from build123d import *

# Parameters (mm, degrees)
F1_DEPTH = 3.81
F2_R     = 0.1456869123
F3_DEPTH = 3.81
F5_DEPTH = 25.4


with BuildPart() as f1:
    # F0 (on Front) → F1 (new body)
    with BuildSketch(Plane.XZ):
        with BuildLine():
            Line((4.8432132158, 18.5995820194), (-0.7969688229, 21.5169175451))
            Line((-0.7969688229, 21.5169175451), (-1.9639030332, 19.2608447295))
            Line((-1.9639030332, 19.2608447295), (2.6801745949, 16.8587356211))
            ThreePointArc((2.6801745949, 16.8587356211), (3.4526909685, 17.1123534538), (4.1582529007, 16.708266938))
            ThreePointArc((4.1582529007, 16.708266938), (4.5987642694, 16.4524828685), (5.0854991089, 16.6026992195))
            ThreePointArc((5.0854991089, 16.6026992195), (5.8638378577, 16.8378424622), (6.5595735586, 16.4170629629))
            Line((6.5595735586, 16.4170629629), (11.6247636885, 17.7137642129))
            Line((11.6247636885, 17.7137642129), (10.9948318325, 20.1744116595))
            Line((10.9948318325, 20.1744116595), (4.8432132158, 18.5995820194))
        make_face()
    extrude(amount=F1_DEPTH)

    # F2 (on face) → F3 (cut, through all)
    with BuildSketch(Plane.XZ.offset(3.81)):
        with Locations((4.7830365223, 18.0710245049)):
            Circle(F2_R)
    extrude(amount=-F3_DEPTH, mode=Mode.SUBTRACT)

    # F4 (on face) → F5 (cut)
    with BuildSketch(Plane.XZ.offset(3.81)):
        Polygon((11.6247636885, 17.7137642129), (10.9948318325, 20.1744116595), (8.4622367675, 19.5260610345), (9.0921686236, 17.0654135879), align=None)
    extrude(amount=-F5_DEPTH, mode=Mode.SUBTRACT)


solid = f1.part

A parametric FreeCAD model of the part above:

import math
import FreeCAD as App
import Part
import Sketcher
from FreeCAD import Vector
Q = App.Units.Quantity


def add_polygon(sketch, points):
    """Adds a closed chain of lines whose ends are joined by coincident constraints."""
    first, n = sketch.GeometryCount, len(points)
    for a, b in zip(points, points[1:] + points[:1]):
        sketch.addGeometry(Part.LineSegment(App.Vector(*a, 0), App.Vector(*b, 0)), False)
    for i in range(n):
        sketch.addConstraint(Sketcher.Constraint("Coincident", first + i, 2, first + (i + 1) % n, 1))

doc = App.newDocument("Part")
body = doc.addObject("PartDesign::Body", "Body")

# Sketch on XZ plane
sketch1 = body.newObject("Sketcher::SketchObject", "Sketch")
sketch1.AttachmentSupport = (doc.getObject("XZ_Plane"), [""])
sketch1.MapMode = "FlatFace"
sketch1.addGeometry([
    Part.LineSegment(Vector(4.843213, 18.599582, 0), Vector(-0.796969, 21.516918, 0)),  # 0
    Part.LineSegment(Vector(-0.796969, 21.516918, 0), Vector(-1.963903, 19.260845, 0)),  # 1
    Part.LineSegment(Vector(-1.963903, 19.260845, 0), Vector(2.680175, 16.858736, 0)),  # 2
    Part.ArcOfCircle(Part.Circle(Vector(3.351414, 16.117495, 0), Vector(0, 0, 1), 1), math.radians(36.211795), math.radians(132.162809)),  # 3
    Part.ArcOfCircle(Part.Circle(Vector(4.670595, 17.083407, 0), Vector(0, 0, 1), 0.635), math.radians(-143.788205), math.radians(-49.2022)),  # 4
    Part.ArcOfCircle(Part.Circle(Vector(5.738891, 15.845679, 0), Vector(0, 0, 1), 1), math.radians(34.846785), math.radians(130.7978)),  # 5
    Part.LineSegment(Vector(6.559574, 16.417063, 0), Vector(11.624764, 17.713764, 0)),  # 6
    Part.LineSegment(Vector(11.624764, 17.713764, 0), Vector(10.994832, 20.174412, 0)),  # 7
    Part.LineSegment(Vector(10.994832, 20.174412, 0), Vector(4.843213, 18.599582, 0)),  # 8
], False)
sketch1.addConstraint([
    Sketcher.Constraint("Coincident", 0, 2, 1, 1),
    Sketcher.Constraint("Coincident", 1, 2, 2, 1),
    Sketcher.Constraint("Coincident", 2, 2, 3, 2),
    Sketcher.Constraint("Coincident", 3, 1, 4, 1),
    Sketcher.Constraint("Coincident", 4, 2, 5, 2),
    Sketcher.Constraint("Coincident", 5, 1, 6, 1),
    Sketcher.Constraint("Coincident", 6, 2, 7, 1),
    Sketcher.Constraint("Coincident", 7, 2, 8, 1),
    Sketcher.Constraint("Coincident", 8, 2, 0, 1),
    Sketcher.Constraint("Radius", 4, Q("0.025 in")),
    Sketcher.Constraint("Distance", 1, Q("0.1 in")),
    Sketcher.Constraint("Distance", 7, Q("0.1 in")),
    Sketcher.Constraint("Distance", 0, Q("0.25 in")),
    Sketcher.Constraint("Distance", 8, Q("0.25 in")),
    Sketcher.Constraint("Radius", 3, Q("1 mm")),
    Sketcher.Constraint("Radius", 5, Q("1 mm")),
    Sketcher.Constraint("DistanceX", -1, 1, 4, 2, Q("5.085499 mm")),
    Sketcher.Constraint("DistanceY", -1, 1, 4, 2, Q("16.602699 mm")),
    Sketcher.Constraint("DistanceX", 1, 2, 4, 3, Q("6.634499 mm")),
    Sketcher.Constraint("DistanceY", 5, 1, 6, 2, Q("1.296701 mm")),
    Sketcher.Constraint("DistanceX", -1, 1, 5, 3, Q("5.738891 mm")),
    Sketcher.Constraint("DistanceX", 0, 2, -1, 1, Q("0.796969 mm")),
    Sketcher.Constraint("DistanceX", -1, 1, 7, 2, Q("10.994832 mm")),
    Sketcher.Constraint("DistanceY", -1, 1, 7, 2, Q("20.174412 mm")),
    Sketcher.Constraint("DistanceX", 3, 3, 4, 3, Q("1.319181 mm")),
    Sketcher.Constraint("DistanceY", 4, 3, 0, 2, Q("4.433511 mm")),
    Sketcher.Constraint("DistanceY", 5, 3, 0, 2, Q("5.671238 mm")),
    Sketcher.Constraint("DistanceX", 2, 2, 3, 3, Q("0.67124 mm")),
    Sketcher.Constraint("DistanceY", 3, 1, 4, 3, Q("0.37514 mm")),
    Sketcher.Constraint("DistanceX", 4, 3, 5, 1, Q("1.888978 mm")),
])
pad1 = body.newObject("PartDesign::Pad", "Pad")
pad1.Profile = sketch1
pad1.Length = Q("0.15 in")

# Sketch on XZ plane
sketch2 = body.newObject("Sketcher::SketchObject", "Sketch001")
sketch2.AttachmentSupport = (doc.getObject("XZ_Plane"), [""])
sketch2.MapMode = "FlatFace"
sketch2.AttachmentOffset = App.Placement(Vector(0, 0, 0.15 * 25.4), App.Rotation())
sketch2.addGeometry(Part.Circle(Vector(4.78, 18.07, 0), Vector(0, 0, 1), 0.15), False)
sketch2.addConstraint([
    Sketcher.Constraint("Diameter", 0, Q("0.291374 mm")),
    Sketcher.Constraint("DistanceX", -1, 1, 0, 3, Q("4.783037 mm")),
    Sketcher.Constraint("DistanceY", -1, 1, 0, 3, Q("18.071025 mm")),
])
pocket1 = body.newObject("PartDesign::Pocket", "Pocket")
pocket1.Profile = sketch2
pocket1.Type = "ThroughAll"

# Sketch on XZ plane
sketch3 = body.newObject("Sketcher::SketchObject", "Sketch002")
sketch3.AttachmentSupport = (doc.getObject("XZ_Plane"), [""])
sketch3.MapMode = "FlatFace"
sketch3.AttachmentOffset = App.Placement(Vector(0, 0, 0.15 * 25.4), App.Rotation())
add_polygon(sketch3, [(11.6, 17.7), (11, 20.2), (8.5, 19.5), (9.1, 17.1)])  # lines 0-3
sketch3.addConstraint([
    Sketcher.Constraint("Perpendicular", 0, 1),
    Sketcher.Constraint("Perpendicular", 1, 2),
    Sketcher.Constraint("Perpendicular", 2, 3),
    Sketcher.Constraint("Distance", 0, Q("0.1 in")),
    Sketcher.Constraint("DistanceY", 2, 2, 0, 2, Q("3.108998 mm")),
    Sketcher.Constraint("DistanceX", -1, 1, 0, 2, Q("10.994832 mm")),
    Sketcher.Constraint("DistanceY", -1, 1, 0, 2, Q("20.174412 mm")),
    Sketcher.Constraint("DistanceY", -1, 1, 1, 2, Q("19.526061 mm")),
])
pocket2 = body.newObject("PartDesign::Pocket", "Pocket001")
pocket2.Profile = sketch3
pocket2.Length = Q("1 in")

doc.recompute()
